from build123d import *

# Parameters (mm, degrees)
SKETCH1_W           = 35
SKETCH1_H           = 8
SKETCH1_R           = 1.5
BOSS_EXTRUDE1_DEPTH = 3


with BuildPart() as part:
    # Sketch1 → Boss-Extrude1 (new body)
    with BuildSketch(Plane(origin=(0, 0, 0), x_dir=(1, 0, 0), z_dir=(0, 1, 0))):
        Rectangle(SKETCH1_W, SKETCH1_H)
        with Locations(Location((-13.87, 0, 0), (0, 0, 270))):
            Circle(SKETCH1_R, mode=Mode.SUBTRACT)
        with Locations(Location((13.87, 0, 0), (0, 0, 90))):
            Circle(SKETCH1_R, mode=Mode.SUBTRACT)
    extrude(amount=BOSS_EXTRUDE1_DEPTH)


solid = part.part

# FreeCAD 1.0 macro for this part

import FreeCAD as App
import Part
import Sketcher

doc = App.newDocument("Part")
params = doc.addObject("Spreadsheet::Sheet", "Params")
for row, (alias, value) in enumerate([
    ("sketch1_diameter", "3 mm"),
    ("sketch1_width", "35 mm"),
    ("sketch1_height", "8 mm"),
    ("pad1_length", "3 mm"),
], start=1):
    params.set(f"A{row}", alias)
    params.set(f"B{row}", "=" + value)
    params.setAlias(f"B{row}", alias)

body = doc.addObject("PartDesign::Body", "Body")

sketch1 = body.newObject("Sketcher::SketchObject", "Sketch")
sketch1.AttachmentSupport = (doc.getObject("XZ_Plane"), [""])
sketch1.MapMode = "FlatFace"
sketch1.addGeometry([
    Part.LineSegment(App.Vector(-17.5, -4, 0), App.Vector(-17.5, 4, 0)),
    Part.LineSegment(App.Vector(-17.5, 4, 0), App.Vector(17.5, 4, 0)),
    Part.LineSegment(App.Vector(17.5, 4, 0), App.Vector(17.5, -4, 0)),
    Part.LineSegment(App.Vector(17.5, -4, 0), App.Vector(-17.5, -4, 0)),
    Part.Circle(App.Vector(-13.9, 0, 0), App.Vector(0, 0, 1), 1.5),
    Part.Circle(App.Vector(13.9, 0, 0), App.Vector(0, 0, 1), 1.5),
], False)
sketch1.addConstraint([
    Sketcher.Constraint("Coincident", 0, 2, 1, 1),
    Sketcher.Constraint("Coincident", 1, 2, 2, 1),
    Sketcher.Constraint("Coincident", 2, 2, 3, 1),
    Sketcher.Constraint("Coincident", 3, 2, 0, 1),
    Sketcher.Constraint("Vertical", 0),
    Sketcher.Constraint("Horizontal", 1),
    Sketcher.Constraint("Vertical", 2),
    Sketcher.Constraint("Horizontal", 3),
    Sketcher.Constraint("Equal", 4, 5),
    Sketcher.Constraint("Symmetric", 4, 3, 5, 3, -1, 1),
    Sketcher.Constraint("Symmetric", 0, 2, 2, 2, -1, 1),
    Sketcher.Constraint("PointOnObject", 4, 3, -1),
    Sketcher.Constraint("Diameter", 4, 3.0),
    Sketcher.Constraint("DistanceX", 1, 1, 1, 2, 35.0),
    Sketcher.Constraint("DistanceY", 0, 1, 0, 2, 8.0),
    Sketcher.Constraint("DistanceX", 4, 3, -1, 1, 13.87),
])
sketch1.setExpression("Constraints[12]", "Params.sketch1_diameter")
sketch1.setExpression("Constraints[13]", "Params.sketch1_width")
sketch1.setExpression("Constraints[14]", "Params.sketch1_height")
pad1 = body.newObject("PartDesign::Pad", "Pad")
pad1.Profile = sketch1
pad1.setExpression("Length", "Params.pad1_length")
pad1.Reversed = True

doc.recompute()
